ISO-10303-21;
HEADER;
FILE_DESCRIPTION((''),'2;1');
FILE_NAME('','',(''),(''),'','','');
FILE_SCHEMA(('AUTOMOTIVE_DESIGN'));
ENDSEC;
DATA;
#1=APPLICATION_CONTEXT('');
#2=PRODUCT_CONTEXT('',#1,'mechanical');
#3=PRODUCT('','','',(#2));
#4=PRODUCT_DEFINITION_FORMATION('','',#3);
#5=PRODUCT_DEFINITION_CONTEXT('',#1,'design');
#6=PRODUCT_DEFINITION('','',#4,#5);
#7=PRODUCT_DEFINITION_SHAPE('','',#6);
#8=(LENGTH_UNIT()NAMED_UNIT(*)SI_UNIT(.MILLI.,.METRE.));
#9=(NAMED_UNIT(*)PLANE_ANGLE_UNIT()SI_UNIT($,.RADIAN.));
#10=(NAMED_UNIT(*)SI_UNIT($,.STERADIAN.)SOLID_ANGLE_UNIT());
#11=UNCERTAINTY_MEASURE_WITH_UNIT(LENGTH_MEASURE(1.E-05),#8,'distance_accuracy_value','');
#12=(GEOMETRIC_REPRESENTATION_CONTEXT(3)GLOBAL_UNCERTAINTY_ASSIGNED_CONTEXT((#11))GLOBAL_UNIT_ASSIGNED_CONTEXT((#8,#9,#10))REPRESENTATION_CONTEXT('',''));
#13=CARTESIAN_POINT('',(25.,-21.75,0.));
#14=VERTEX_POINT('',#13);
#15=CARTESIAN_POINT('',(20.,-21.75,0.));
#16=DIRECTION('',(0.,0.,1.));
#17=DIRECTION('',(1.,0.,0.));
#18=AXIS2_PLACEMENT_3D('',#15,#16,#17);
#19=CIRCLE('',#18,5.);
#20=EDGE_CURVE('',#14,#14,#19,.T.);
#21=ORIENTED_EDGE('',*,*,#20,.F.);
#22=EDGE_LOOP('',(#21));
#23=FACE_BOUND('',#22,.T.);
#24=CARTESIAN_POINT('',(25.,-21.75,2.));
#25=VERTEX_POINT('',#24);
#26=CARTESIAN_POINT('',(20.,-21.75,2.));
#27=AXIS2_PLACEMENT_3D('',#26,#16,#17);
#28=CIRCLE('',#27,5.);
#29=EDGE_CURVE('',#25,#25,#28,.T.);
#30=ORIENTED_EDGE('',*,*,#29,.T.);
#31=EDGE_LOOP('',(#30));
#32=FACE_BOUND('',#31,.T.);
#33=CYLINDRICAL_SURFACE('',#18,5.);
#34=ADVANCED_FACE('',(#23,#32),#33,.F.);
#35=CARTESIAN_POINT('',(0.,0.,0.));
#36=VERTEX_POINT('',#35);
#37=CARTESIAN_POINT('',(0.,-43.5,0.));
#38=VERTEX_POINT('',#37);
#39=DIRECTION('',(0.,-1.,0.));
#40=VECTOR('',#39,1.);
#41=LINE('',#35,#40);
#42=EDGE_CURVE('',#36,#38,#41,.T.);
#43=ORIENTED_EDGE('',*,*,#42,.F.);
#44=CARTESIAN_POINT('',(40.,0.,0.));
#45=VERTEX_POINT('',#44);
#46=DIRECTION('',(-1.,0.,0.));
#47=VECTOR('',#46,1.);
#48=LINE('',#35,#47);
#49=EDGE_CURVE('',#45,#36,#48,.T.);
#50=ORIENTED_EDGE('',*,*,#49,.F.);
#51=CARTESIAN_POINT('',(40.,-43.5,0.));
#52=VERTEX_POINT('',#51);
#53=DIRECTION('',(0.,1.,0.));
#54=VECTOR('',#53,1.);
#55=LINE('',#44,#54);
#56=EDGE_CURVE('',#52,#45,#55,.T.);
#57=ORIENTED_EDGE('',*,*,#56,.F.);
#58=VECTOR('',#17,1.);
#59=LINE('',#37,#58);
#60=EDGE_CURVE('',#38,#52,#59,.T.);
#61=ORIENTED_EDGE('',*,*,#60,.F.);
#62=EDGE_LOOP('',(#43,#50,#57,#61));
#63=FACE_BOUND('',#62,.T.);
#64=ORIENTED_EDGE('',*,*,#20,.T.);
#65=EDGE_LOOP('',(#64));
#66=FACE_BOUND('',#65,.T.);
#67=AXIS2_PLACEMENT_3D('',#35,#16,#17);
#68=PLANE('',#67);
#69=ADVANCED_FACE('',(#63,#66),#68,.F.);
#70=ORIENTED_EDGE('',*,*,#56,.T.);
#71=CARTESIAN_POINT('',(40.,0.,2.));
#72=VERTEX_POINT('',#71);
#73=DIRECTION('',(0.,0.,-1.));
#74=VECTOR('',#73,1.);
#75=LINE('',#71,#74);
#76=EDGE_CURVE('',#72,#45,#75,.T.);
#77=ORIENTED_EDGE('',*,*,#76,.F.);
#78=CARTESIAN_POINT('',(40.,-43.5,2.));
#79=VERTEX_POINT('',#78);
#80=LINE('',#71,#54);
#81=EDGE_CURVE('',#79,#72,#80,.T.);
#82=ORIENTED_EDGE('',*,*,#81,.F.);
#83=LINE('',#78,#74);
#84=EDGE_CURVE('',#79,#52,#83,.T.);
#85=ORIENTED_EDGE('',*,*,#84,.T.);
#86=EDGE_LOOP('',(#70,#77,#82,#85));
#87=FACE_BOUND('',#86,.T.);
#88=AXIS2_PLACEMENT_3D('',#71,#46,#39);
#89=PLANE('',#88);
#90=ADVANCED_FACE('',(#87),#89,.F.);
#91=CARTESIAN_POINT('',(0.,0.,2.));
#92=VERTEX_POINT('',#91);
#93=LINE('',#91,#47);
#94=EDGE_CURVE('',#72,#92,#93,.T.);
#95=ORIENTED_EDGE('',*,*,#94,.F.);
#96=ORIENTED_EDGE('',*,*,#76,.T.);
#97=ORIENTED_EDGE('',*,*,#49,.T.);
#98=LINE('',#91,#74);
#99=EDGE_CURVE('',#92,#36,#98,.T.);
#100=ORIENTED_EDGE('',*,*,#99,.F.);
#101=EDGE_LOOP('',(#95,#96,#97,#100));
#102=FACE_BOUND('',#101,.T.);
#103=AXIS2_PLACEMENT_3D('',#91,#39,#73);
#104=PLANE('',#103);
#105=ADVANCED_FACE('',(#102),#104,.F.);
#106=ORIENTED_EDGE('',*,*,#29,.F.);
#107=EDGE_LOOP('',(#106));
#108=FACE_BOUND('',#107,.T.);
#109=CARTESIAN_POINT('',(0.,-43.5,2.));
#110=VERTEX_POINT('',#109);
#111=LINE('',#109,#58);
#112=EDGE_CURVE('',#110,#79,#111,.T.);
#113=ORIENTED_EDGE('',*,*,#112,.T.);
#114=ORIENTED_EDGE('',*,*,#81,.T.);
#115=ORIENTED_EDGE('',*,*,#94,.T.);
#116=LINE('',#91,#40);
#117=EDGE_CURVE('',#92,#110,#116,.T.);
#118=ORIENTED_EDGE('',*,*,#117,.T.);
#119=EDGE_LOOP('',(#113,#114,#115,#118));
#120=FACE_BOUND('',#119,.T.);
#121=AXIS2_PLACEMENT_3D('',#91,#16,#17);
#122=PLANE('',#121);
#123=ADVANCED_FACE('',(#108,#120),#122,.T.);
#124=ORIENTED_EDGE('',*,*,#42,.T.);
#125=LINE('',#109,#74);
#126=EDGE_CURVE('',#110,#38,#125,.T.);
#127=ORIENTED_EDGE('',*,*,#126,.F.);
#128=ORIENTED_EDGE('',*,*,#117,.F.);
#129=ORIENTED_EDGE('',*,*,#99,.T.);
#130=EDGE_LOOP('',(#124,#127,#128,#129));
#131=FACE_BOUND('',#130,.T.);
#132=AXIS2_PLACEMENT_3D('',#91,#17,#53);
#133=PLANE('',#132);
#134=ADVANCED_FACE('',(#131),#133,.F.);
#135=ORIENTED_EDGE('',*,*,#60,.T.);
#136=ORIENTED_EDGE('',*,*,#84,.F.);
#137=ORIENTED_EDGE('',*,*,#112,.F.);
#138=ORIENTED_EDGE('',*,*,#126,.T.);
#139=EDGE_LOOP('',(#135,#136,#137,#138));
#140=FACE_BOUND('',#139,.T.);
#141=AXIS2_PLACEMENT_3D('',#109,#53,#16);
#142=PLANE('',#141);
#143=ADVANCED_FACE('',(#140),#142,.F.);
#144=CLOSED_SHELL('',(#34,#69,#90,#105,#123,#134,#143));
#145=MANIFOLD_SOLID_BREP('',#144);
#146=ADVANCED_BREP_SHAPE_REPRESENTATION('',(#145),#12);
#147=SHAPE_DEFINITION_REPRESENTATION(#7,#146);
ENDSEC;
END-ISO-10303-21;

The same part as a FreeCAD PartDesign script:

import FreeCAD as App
import Part
import Sketcher

V = App.Vector


def add_polygon(sketch, points):
    """Adds a closed chain of lines whose ends are joined by coincident constraints."""
    first, n = sketch.GeometryCount, len(points)
    for a, b in zip(points, points[1:] + points[:1]):
        sketch.addGeometry(Part.LineSegment(App.Vector(*a, 0), App.Vector(*b, 0)), False)
    for i in range(n):
        sketch.addConstraint(Sketcher.Constraint("Coincident", first + i, 2, first + (i + 1) % n, 1))

doc = App.newDocument("Part")
params = doc.addObject("Spreadsheet::Sheet", "Params")
for row, (alias, value) in enumerate([
    ("sketch1_width", "40 mm"),
    ("sketch1_height", "43.5 mm"),
    ("pad1_length", "2 mm"),
    ("sketch2_diameter", "10 mm"),
], start=1):
    params.set(f"A{row}", alias)
    params.set(f"B{row}", "=" + value)
    params.setAlias(f"B{row}", alias)

body = doc.addObject("PartDesign::Body", "Body")

# Sketch on XY plane
sketch1 = body.newObject("Sketcher::SketchObject", "Sketch")
sketch1.AttachmentSupport = (doc.getObject("XY_Plane"), [""])
sketch1.MapMode = "FlatFace"
add_polygon(sketch1, [(0, 0), (0, -43.5), (40, -43.5), (40, 0)])  # lines 0-3
sketch1.addConstraint([
    Sketcher.Constraint("Vertical", 0),
    Sketcher.Constraint("Horizontal", 1),
    Sketcher.Constraint("Vertical", 2),
    Sketcher.Constraint("Horizontal", 3),
    Sketcher.Constraint("Coincident", 3, 2, -1, 1),
    Sketcher.Constraint("DistanceX", 1, 1, 1, 2, 40.0),
    Sketcher.Constraint("DistanceY", 0, 2, 0, 1, 43.5),
])
sketch1.setExpression("Constraints[9]", "Params.sketch1_width")
sketch1.setExpression("Constraints[10]", "Params.sketch1_height")
pad1 = body.newObject("PartDesign::Pad", "Pad")
pad1.Profile = sketch1
pad1.setExpression("Length", "Params.pad1_length")

# Sketch on XY plane
sketch2 = body.newObject("Sketcher::SketchObject", "Sketch001")
sketch2.AttachmentSupport = (doc.getObject("XY_Plane"), [""])
sketch2.MapMode = "FlatFace"
sketch2.AttachmentOffset = App.Placement(V(0, 0, 2), App.Rotation())
sketch2.addGeometry(Part.Circle(V(20, -21.75, 0), V(0, 0, 1), 5), False)
sketch2.addConstraint([
    Sketcher.Constraint("Diameter", 0, 10.0),
    Sketcher.Constraint("DistanceX", -1, 1, 0, 3, 20.0),
    Sketcher.Constraint("DistanceY", 0, 3, -1, 1, 21.75),
])
sketch2.setExpression("Constraints[0]", "Params.sketch2_diameter")
pocket1 = body.newObject("PartDesign::Pocket", "Pocket")
pocket1.Profile = sketch2
pocket1.Type = "ThroughAll"

doc.recompute()
